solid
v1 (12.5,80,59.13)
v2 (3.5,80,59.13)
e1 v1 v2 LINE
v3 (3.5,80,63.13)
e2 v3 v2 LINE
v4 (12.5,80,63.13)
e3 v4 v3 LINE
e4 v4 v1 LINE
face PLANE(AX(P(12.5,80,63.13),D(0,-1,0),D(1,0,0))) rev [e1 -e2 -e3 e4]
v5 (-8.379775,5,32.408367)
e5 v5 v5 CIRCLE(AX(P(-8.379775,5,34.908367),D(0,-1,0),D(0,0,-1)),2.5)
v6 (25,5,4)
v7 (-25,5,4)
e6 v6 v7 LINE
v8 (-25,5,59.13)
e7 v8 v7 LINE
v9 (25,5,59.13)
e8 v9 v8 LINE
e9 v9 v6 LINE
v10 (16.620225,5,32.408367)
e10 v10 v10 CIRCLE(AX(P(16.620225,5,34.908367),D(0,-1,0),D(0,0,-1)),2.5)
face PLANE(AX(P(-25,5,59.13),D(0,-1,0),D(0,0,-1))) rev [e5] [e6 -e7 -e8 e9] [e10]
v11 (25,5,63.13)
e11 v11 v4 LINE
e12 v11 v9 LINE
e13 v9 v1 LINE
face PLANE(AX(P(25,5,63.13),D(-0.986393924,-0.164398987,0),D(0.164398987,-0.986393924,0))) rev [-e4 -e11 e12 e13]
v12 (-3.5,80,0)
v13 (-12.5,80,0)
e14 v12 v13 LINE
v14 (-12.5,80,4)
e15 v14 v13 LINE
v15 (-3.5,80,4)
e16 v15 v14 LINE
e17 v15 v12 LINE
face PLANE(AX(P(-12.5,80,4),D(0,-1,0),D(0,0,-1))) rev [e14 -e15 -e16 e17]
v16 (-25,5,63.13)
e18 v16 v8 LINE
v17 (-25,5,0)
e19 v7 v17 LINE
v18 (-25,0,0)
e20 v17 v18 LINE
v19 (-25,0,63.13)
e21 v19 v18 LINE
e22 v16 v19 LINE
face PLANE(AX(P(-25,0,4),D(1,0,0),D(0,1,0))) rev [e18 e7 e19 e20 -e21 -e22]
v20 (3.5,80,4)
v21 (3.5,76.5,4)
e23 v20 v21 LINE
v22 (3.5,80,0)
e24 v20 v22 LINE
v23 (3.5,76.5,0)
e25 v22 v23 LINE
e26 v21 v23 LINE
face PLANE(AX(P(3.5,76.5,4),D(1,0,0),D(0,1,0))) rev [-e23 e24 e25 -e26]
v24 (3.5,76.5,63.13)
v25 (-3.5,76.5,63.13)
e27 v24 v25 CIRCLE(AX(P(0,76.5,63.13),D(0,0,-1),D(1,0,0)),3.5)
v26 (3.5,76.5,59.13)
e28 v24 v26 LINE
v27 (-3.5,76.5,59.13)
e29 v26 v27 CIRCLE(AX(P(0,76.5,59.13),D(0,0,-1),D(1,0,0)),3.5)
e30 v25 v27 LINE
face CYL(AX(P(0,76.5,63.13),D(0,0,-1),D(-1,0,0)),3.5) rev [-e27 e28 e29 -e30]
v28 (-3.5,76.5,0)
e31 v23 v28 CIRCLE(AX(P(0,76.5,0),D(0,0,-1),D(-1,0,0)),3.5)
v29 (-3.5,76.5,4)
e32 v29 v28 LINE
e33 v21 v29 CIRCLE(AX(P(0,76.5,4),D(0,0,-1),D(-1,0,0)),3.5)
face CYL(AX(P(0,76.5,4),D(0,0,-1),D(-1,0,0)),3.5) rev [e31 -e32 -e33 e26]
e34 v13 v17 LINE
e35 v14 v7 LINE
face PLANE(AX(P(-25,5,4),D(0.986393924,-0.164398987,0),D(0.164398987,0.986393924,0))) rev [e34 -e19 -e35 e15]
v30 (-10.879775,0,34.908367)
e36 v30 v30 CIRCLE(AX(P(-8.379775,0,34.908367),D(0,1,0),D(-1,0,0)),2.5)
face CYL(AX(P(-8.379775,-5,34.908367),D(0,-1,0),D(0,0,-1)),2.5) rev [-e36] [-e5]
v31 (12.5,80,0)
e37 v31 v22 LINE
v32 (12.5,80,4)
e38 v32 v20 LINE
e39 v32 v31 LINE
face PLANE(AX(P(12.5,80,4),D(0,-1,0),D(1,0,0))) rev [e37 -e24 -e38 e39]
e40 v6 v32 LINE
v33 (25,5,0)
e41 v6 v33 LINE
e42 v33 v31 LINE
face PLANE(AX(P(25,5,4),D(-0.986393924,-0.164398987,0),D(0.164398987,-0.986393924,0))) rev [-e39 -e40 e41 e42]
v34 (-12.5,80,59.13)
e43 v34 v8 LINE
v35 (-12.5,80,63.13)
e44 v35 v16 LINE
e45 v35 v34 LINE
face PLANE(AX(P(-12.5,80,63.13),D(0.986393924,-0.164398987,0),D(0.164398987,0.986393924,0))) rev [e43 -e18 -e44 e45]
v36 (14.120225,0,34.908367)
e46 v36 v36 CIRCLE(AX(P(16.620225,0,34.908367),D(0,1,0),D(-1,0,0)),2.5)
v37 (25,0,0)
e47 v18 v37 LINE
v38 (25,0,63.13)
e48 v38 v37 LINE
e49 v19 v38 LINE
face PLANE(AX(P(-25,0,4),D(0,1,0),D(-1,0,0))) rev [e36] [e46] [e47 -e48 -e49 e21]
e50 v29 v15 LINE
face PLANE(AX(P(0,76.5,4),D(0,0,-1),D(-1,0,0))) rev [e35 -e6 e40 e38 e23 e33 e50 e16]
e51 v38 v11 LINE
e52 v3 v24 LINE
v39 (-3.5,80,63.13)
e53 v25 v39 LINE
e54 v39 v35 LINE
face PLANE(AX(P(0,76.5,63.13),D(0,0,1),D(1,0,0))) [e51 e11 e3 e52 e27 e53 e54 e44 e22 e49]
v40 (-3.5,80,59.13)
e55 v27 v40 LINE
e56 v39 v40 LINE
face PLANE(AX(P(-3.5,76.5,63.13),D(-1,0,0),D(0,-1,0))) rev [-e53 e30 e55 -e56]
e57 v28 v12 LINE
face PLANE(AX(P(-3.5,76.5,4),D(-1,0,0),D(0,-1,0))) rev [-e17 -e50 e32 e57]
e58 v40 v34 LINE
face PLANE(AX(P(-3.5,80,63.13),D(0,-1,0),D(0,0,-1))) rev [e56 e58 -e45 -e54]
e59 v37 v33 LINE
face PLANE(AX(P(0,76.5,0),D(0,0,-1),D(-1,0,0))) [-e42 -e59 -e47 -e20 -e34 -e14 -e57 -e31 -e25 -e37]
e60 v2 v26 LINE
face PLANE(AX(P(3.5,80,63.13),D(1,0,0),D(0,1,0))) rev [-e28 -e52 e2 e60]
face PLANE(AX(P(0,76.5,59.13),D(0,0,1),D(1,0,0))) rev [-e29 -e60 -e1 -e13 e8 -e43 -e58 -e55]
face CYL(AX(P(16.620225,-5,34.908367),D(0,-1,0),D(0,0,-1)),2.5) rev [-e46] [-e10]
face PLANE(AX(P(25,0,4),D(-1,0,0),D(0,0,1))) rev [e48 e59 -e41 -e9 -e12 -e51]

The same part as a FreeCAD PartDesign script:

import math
import FreeCAD as App
import Part
import Sketcher

doc = App.newDocument("Part")
params = doc.addObject("Spreadsheet::Sheet", "Params")
for row, (alias, value) in enumerate([
    ("sketch1_radius", "3.5 mm"),
    ("sketch1_width", "50 mm"),
    ("sketch1_width2", "9 mm"),
    ("sketch1_height", "5 mm"),
    ("sketch1_height2", "3.5 mm"),
    ("pad1_length", "4 mm"),
    ("sketch2_width", "50 mm"),
    ("sketch2_height", "5 mm"),
    ("pad2_length", "55.13 mm"),
    ("sketch3_radius", "3.5 mm"),
    ("sketch3_width", "9 mm"),
    ("sketch3_width2", "50 mm"),
    ("sketch3_height", "5 mm"),
    ("sketch3_height2", "3.5 mm"),
    ("pad3_length", "4 mm"),
    ("sketch4_diameter", "5 mm"),
    ("hole_diameter", "5 mm"),
], start=1):
    params.set(f"A{row}", alias)
    params.set(f"B{row}", "=" + value)
    params.setAlias(f"B{row}", alias)

body = doc.addObject("PartDesign::Body", "Body")

sketch1 = body.newObject("Sketcher::SketchObject", "Sketch")
sketch1.AttachmentSupport = (doc.getObject("XY_Plane"), [""])
sketch1.MapMode = "FlatFace"
sketch1.addGeometry([
    Part.LineSegment(App.Vector(-25, 0, 0), App.Vector(25, 0, 0)),
    Part.LineSegment(App.Vector(25, 0, 0), App.Vector(25, 5, 0)),
    Part.LineSegment(App.Vector(25, 5, 0), App.Vector(12.5, 80, 0)),
    Part.LineSegment(App.Vector(12.5, 80, 0), App.Vector(3.5, 80, 0)),
    Part.LineSegment(App.Vector(3.5, 80, 0), App.Vector(3.5, 76.5, 0)),
    Part.ArcOfCircle(Part.Circle(App.Vector(0, 76.5, 0), App.Vector(0, 0, 1), 3.5), math.radians(180), math.radians(360)),
    Part.LineSegment(App.Vector(-3.5, 76.5, 0), App.Vector(-3.5, 80, 0)),
    Part.LineSegment(App.Vector(-3.5, 80, 0), App.Vector(-12.5, 80, 0)),
    Part.LineSegment(App.Vector(-12.5, 80, 0), App.Vector(-25, 5, 0)),
    Part.LineSegment(App.Vector(-25, 5, 0), App.Vector(-25, 0, 0)),
], False)
sketch1.addConstraint([
    Sketcher.Constraint("Coincident", 0, 2, 1, 1),
    Sketcher.Constraint("Coincident", 1, 2, 2, 1),
    Sketcher.Constraint("Coincident", 2, 2, 3, 1),
    Sketcher.Constraint("Coincident", 3, 2, 4, 1),
    Sketcher.Constraint("Tangent", 4, 2, 5, 2),
    Sketcher.Constraint("Tangent", 5, 1, 6, 1),
    Sketcher.Constraint("Coincident", 6, 2, 7, 1),
    Sketcher.Constraint("Coincident", 7, 2, 8, 1),
    Sketcher.Constraint("Coincident", 8, 2, 9, 1),
    Sketcher.Constraint("Coincident", 9, 2, 0, 1),
    Sketcher.Constraint("Horizontal", 0),
    Sketcher.Constraint("Vertical", 1),
    Sketcher.Constraint("Horizontal", 3),
    Sketcher.Constraint("Vertical", 4),
    Sketcher.Constraint("Vertical", 6),
    Sketcher.Constraint("Horizontal", 7),
    Sketcher.Constraint("Vertical", 9),
    Sketcher.Constraint("Symmetric", 0, 2, 9, 2, -1, 1),
    Sketcher.Constraint("Symmetric", 3, 2, 6, 2, -2),
    Sketcher.Constraint("Horizontal", 1, 2, 8, 2),
    Sketcher.Constraint("Equal", 3, 7),
    Sketcher.Constraint("Radius", 5, 3.5),
    Sketcher.Constraint("DistanceX", 0, 1, 0, 2, 50.0),
    Sketcher.Constraint("DistanceX", 3, 2, 3, 1, 9.0),
    Sketcher.Constraint("DistanceY", 1, 1, 1, 2, 5.0),
    Sketcher.Constraint("DistanceY", 4, 2, 4, 1, 3.5),
    Sketcher.Constraint("DistanceY", -1, 1, 2, 2, 80.0),
])
sketch1.setExpression("Constraints[21]", "Params.sketch1_radius")
sketch1.setExpression("Constraints[22]", "Params.sketch1_width")
sketch1.setExpression("Constraints[23]", "Params.sketch1_width2")
sketch1.setExpression("Constraints[24]", "Params.sketch1_height")
sketch1.setExpression("Constraints[25]", "Params.sketch1_height2")
pad1 = body.newObject("PartDesign::Pad", "Pad")
pad1.Profile = sketch1
pad1.setExpression("Length", "Params.pad1_length")

sketch2 = body.newObject("Sketcher::SketchObject", "Sketch001")
sketch2.AttachmentSupport = (doc.getObject("XY_Plane"), [""])
sketch2.MapMode = "FlatFace"
sketch2.AttachmentOffset = App.Placement(App.Vector(0, 0, 4), App.Rotation())
sketch2.addGeometry([
    Part.LineSegment(App.Vector(-25, 5, 0), App.Vector(-25, 0, 0)),
    Part.LineSegment(App.Vector(-25, 0, 0), App.Vector(25, 0, 0)),
    Part.LineSegment(App.Vector(25, 0, 0), App.Vector(25, 5, 0)),
    Part.LineSegment(App.Vector(25, 5, 0), App.Vector(-25, 5, 0)),
], False)
sketch2.addConstraint([
    Sketcher.Constraint("Coincident", 0, 2, 1, 1),
    Sketcher.Constraint("Coincident", 1, 2, 2, 1),
    Sketcher.Constraint("Coincident", 2, 2, 3, 1),
    Sketcher.Constraint("Coincident", 3, 2, 0, 1),
    Sketcher.Constraint("Vertical", 0),
    Sketcher.Constraint("Horizontal", 1),
    Sketcher.Constraint("Vertical", 2),
    Sketcher.Constraint("Horizontal", 3),
    Sketcher.Constraint("Symmetric", 0, 2, 1, 2, -1, 1),
    Sketcher.Constraint("DistanceX", 1, 1, 1, 2, 50.0),
    Sketcher.Constraint("DistanceY", 0, 2, 0, 1, 5.0),
])
sketch2.setExpression("Constraints[9]", "Params.sketch2_width")
sketch2.setExpression("Constraints[10]", "Params.sketch2_height")
pad2 = body.newObject("PartDesign::Pad", "Pad001")
pad2.Profile = sketch2
pad2.setExpression("Length", "Params.pad2_length")

sketch3 = body.newObject("Sketcher::SketchObject", "Sketch002")
sketch3.AttachmentSupport = (doc.getObject("XY_Plane"), [""])
sketch3.MapMode = "FlatFace"
sketch3.AttachmentOffset = App.Placement(App.Vector(0, 0, 59.13), App.Rotation())
sketch3.addGeometry([
    Part.LineSegment(App.Vector(3.5, 80, 0), App.Vector(3.5, 76.5, 0)),
    Part.ArcOfCircle(Part.Circle(App.Vector(0, 76.5, 0), App.Vector(0, 0, 1), 3.5), math.radians(180), math.radians(360)),
    Part.LineSegment(App.Vector(-3.5, 76.5, 0), App.Vector(-3.5, 80, 0)),
    Part.LineSegment(App.Vector(-3.5, 80, 0), App.Vector(-12.5, 80, 0)),
    Part.LineSegment(App.Vector(-12.5, 80, 0), App.Vector(-25, 5, 0)),
    Part.LineSegment(App.Vector(-25, 5, 0), App.Vector(-25, 0, 0)),
    Part.LineSegment(App.Vector(-25, 0, 0), App.Vector(25, 0, 0)),
    Part.LineSegment(App.Vector(25, 0, 0), App.Vector(25, 5, 0)),
    Part.LineSegment(App.Vector(25, 5, 0), App.Vector(12.5, 80, 0)),
    Part.LineSegment(App.Vector(12.5, 80, 0), App.Vector(3.5, 80, 0)),
], False)
sketch3.addConstraint([
    Sketcher.Constraint("Tangent", 0, 2, 1, 2),
    Sketcher.Constraint("Tangent", 1, 1, 2, 1),
    Sketcher.Constraint("Coincident", 2, 2, 3, 1),
    Sketcher.Constraint("Coincident", 3, 2, 4, 1),
    Sketcher.Constraint("Coincident", 4, 2, 5, 1),
    Sketcher.Constraint("Coincident", 5, 2, 6, 1),
    Sketcher.Constraint("Coincident", 6, 2, 7, 1),
    Sketcher.Constraint("Coincident", 7, 2, 8, 1),
    Sketcher.Constraint("Coincident", 8, 2, 9, 1),
    Sketcher.Constraint("Coincident", 9, 2, 0, 1),
    Sketcher.Constraint("Vertical", 0),
    Sketcher.Constraint("Vertical", 2),
    Sketcher.Constraint("Horizontal", 3),
    Sketcher.Constraint("Vertical", 5),
    Sketcher.Constraint("Horizontal", 6),
    Sketcher.Constraint("Vertical", 7),
    Sketcher.Constraint("Horizontal", 9),
    Sketcher.Constraint("Symmetric", 5, 2, 6, 2, -1, 1),
    Sketcher.Constraint("Symmetric", 3, 2, 8, 2, -2),
    Sketcher.Constraint("PointOnObject", 1, 3, -2),
    Sketcher.Constraint("Horizontal", 4, 2, 7, 2),
    Sketcher.Constraint("Radius", 1, 3.5),
    Sketcher.Constraint("DistanceX", 3, 2, 3, 1, 9.0),
    Sketcher.Constraint("DistanceX", 6, 1, 6, 2, 50.0),
    Sketcher.Constraint("DistanceY", 5, 2, 5, 1, 5.0),
    Sketcher.Constraint("DistanceY", 0, 2, 0, 1, 3.5),
    Sketcher.Constraint("DistanceY", -1, 1, 2, 2, 80.0),
])
sketch3.setExpression("Constraints[21]", "Params.sketch3_radius")
sketch3.setExpression("Constraints[22]", "Params.sketch3_width")
sketch3.setExpression("Constraints[23]", "Params.sketch3_width2")
sketch3.setExpression("Constraints[24]", "Params.sketch3_height")
sketch3.setExpression("Constraints[25]", "Params.sketch3_height2")
pad3 = body.newObject("PartDesign::Pad", "Pad002")
pad3.Profile = sketch3
pad3.setExpression("Length", "Params.pad3_length")

sketch4 = body.newObject("Sketcher::SketchObject", "Sketch003")
sketch4.AttachmentSupport = (doc.getObject("XZ_Plane"), [""])
sketch4.MapMode = "FlatFace"
sketch4.AttachmentOffset = App.Placement(App.Vector(0, 0, 5), App.Rotation())
sketch4.addGeometry([
    Part.Circle(App.Vector(-8.4, 34.9, 0), App.Vector(0, 0, 1), 2.5),
    Part.Circle(App.Vector(16.6, 34.9, 0), App.Vector(0, 0, 1), 2.5),
], False)
sketch4.addConstraint([
    Sketcher.Constraint("Equal", 0, 1),
    Sketcher.Constraint("Horizontal", 0, 3, 1, 3),
    Sketcher.Constraint("Diameter", 0, 5.0),
    Sketcher.Constraint("DistanceX", 0, 3, 1, 3, 25.0),
    Sketcher.Constraint("DistanceX", 0, 3, -1, 1, 8.379775),
    Sketcher.Constraint("DistanceY", -1, 1, 0, 3, 34.908367),
])
sketch4.setExpression("Constraints[2]", "Params.sketch4_diameter")
doc.recompute()
hole = body.newObject("PartDesign::Hole", "Hole")
hole.Profile = sketch4
hole.ThreadType = "None"
hole.setExpression("Diameter", "Params.hole_diameter")
hole.DepthType = "ThroughAll"

doc.recompute()
